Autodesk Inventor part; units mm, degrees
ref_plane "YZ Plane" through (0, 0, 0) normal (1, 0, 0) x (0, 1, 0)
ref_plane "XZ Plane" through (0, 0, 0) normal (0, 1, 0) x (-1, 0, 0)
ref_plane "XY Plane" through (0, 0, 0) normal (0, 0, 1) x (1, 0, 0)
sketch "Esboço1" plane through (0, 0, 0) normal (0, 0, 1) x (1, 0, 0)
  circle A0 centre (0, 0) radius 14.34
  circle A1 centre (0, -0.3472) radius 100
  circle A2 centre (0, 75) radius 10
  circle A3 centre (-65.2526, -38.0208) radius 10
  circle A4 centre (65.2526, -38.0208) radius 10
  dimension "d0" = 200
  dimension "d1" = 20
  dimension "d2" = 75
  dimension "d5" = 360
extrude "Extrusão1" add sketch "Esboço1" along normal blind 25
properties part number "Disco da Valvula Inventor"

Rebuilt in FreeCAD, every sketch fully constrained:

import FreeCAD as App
import Part
import Sketcher
Q = App.Units.Quantity

doc = App.newDocument("Part")
body = doc.addObject("PartDesign::Body", "Body")

sketch1 = body.newObject("Sketcher::SketchObject", "Sketch")
sketch1.AttachmentSupport = (doc.getObject("XY_Plane"), [""])
sketch1.MapMode = "FlatFace"
sketch1.addGeometry(Part.Circle(App.Vector(0, 0, 0), App.Vector(0, 0, 1), 100), False)
sketch1.addGeometry(Part.Circle(App.Vector(-65, -38, 0), App.Vector(0, 0, 1), 10), False)
sketch1.addGeometry(Part.Circle(App.Vector(65, -38, 0), App.Vector(0, 0, 1), 10), False)
sketch1.addGeometry(Part.Circle(App.Vector(0, 0, 0), App.Vector(0, 0, 1), 14), False)
sketch1.addGeometry(Part.Circle(App.Vector(0, 75, 0), App.Vector(0, 0, 1), 10), False)
sketch1.addConstraint(Sketcher.Constraint("Coincident", 3, 3, -1, 1))
sketch1.addConstraint(Sketcher.Constraint("Equal", 1, 2))
sketch1.addConstraint(Sketcher.Constraint("Equal", 2, 4))
sketch1.addConstraint(Sketcher.Constraint("Symmetric", 1, 3, 2, 3, -2))
sketch1.addConstraint(Sketcher.Constraint("PointOnObject", 0, 3, -2))
sketch1.addConstraint(Sketcher.Constraint("PointOnObject", 4, 3, -2))
sketch1.addConstraint(Sketcher.Constraint("Diameter", 0, Q("200 mm")))
sketch1.addConstraint(Sketcher.Constraint("Diameter", 1, Q("20 mm")))
sketch1.addConstraint(Sketcher.Constraint("DistanceY", -1, 1, 4, 3, Q("75 mm")))
sketch1.addConstraint(Sketcher.Constraint("Diameter", 3, Q("28.68 mm")))
sketch1.addConstraint(Sketcher.Constraint("DistanceY", 0, 3, -1, 1, Q("0.3472 mm")))
sketch1.addConstraint(Sketcher.Constraint("DistanceX", 1, 3, -1, 1, Q("65.2526 mm")))
sketch1.addConstraint(Sketcher.Constraint("DistanceY", 1, 3, -1, 1, Q("38.0208 mm")))
pad1 = body.newObject("PartDesign::Pad", "Pad")
pad1.Profile = sketch1
pad1.Length = 25

doc.recompute()
